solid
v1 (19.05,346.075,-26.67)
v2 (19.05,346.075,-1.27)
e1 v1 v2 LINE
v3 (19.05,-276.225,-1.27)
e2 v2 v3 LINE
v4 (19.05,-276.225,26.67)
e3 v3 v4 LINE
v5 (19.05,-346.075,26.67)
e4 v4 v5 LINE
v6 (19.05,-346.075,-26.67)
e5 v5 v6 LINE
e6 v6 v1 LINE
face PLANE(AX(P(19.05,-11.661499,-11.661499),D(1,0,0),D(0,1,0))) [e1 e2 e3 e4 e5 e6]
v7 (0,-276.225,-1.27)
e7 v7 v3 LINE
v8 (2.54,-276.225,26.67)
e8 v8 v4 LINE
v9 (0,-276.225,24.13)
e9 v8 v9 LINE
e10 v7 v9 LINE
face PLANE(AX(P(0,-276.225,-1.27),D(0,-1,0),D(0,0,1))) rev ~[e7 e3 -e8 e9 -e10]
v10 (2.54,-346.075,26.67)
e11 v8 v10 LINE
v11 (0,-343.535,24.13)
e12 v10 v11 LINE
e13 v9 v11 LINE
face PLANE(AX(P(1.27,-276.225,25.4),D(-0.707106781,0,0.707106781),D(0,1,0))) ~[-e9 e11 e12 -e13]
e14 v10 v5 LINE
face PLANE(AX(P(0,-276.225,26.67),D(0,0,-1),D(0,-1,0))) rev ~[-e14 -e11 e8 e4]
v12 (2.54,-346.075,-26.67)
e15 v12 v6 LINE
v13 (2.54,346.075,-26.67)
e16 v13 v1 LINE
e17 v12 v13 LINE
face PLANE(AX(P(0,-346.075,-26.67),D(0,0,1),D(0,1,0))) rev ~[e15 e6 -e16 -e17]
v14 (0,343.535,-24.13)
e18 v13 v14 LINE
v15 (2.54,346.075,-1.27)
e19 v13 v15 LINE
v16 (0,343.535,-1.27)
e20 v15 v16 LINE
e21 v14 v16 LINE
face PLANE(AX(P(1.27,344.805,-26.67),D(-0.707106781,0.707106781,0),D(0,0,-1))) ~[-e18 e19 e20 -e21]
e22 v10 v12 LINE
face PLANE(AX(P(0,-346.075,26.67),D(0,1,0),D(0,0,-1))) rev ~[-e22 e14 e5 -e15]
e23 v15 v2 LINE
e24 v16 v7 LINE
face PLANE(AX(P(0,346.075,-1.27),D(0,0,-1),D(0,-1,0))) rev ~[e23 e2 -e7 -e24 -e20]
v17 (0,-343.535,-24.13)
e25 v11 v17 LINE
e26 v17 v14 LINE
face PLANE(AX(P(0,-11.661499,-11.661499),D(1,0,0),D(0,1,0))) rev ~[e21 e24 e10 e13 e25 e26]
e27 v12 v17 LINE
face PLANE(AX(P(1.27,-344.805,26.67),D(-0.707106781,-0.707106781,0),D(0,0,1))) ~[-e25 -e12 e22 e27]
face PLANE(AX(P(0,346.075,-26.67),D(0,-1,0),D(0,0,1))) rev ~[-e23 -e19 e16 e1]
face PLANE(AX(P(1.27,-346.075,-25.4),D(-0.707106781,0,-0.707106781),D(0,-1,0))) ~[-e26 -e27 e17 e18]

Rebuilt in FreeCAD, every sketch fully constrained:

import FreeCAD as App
import Part
import Sketcher
from FreeCAD import Vector
Q = App.Units.Quantity


def edges_at(feature, points):
    """Names of the edges that pass closest to the given points."""
    edges = feature.Shape.Edges
    near = lambda p: min(range(len(edges)), key=lambda i: edges[i].distToShape(Part.Vertex(*p))[0])
    return sorted({f"Edge{near(p) + 1}" for p in points})


def add_polygon(sketch, points):
    """Adds a closed chain of lines whose ends are joined by coincident constraints."""
    first, n = sketch.GeometryCount, len(points)
    for a, b in zip(points, points[1:] + points[:1]):
        sketch.addGeometry(Part.LineSegment(App.Vector(*a, 0), App.Vector(*b, 0)), False)
    for i in range(n):
        sketch.addConstraint(Sketcher.Constraint("Coincident", first + i, 2, first + (i + 1) % n, 1))

doc = App.newDocument("Part")
body = doc.addObject("PartDesign::Body", "Body")

# Sketch on YZ plane
sketch1 = body.newObject("Sketcher::SketchObject", "Sketch")
sketch1.AttachmentSupport = (doc.getObject("YZ_Plane"), [""])
sketch1.MapMode = "FlatFace"
add_polygon(sketch1, [(-346, 27), (-346, -27), (346, -27), (346, -1), (-276, -1), (-276, 27)])  # lines 0-5
sketch1.addConstraint([
    Sketcher.Constraint("Vertical", 0),
    Sketcher.Constraint("Horizontal", 1),
    Sketcher.Constraint("Vertical", 2),
    Sketcher.Constraint("Horizontal", 3),
    Sketcher.Constraint("Vertical", 4),
    Sketcher.Constraint("Horizontal", 5),
    Sketcher.Constraint("Symmetric", 1, 2, 5, 2, -1, 1),
    Sketcher.Constraint("DistanceY", 2, 1, 2, 2, Q("1 in")),
    Sketcher.Constraint("DistanceX", 3, 2, 3, 1, Q("24.5 in")),
    Sketcher.Constraint("DistanceY", 0, 2, 0, 1, Q("2.1 in")),
    Sketcher.Constraint("DistanceX", 1, 1, 1, 2, Q("27.25 in")),
])
pad1 = body.newObject("PartDesign::Pad", "Pad")
pad1.Profile = sketch1
pad1.Length = Q("0.75 in")
doc.recompute()

chamfer = body.newObject("PartDesign::Chamfer", "Chamfer")
chamfer.Base = (pad1, edges_at(pad1, [
    (0, -311.15, 26.67),
    (0, -346.075, 0),
    (0, 0, -26.67),
    (0, 346.075, -13.97),
]))
chamfer.Size = Q("0.1 in")

doc.recompute()
